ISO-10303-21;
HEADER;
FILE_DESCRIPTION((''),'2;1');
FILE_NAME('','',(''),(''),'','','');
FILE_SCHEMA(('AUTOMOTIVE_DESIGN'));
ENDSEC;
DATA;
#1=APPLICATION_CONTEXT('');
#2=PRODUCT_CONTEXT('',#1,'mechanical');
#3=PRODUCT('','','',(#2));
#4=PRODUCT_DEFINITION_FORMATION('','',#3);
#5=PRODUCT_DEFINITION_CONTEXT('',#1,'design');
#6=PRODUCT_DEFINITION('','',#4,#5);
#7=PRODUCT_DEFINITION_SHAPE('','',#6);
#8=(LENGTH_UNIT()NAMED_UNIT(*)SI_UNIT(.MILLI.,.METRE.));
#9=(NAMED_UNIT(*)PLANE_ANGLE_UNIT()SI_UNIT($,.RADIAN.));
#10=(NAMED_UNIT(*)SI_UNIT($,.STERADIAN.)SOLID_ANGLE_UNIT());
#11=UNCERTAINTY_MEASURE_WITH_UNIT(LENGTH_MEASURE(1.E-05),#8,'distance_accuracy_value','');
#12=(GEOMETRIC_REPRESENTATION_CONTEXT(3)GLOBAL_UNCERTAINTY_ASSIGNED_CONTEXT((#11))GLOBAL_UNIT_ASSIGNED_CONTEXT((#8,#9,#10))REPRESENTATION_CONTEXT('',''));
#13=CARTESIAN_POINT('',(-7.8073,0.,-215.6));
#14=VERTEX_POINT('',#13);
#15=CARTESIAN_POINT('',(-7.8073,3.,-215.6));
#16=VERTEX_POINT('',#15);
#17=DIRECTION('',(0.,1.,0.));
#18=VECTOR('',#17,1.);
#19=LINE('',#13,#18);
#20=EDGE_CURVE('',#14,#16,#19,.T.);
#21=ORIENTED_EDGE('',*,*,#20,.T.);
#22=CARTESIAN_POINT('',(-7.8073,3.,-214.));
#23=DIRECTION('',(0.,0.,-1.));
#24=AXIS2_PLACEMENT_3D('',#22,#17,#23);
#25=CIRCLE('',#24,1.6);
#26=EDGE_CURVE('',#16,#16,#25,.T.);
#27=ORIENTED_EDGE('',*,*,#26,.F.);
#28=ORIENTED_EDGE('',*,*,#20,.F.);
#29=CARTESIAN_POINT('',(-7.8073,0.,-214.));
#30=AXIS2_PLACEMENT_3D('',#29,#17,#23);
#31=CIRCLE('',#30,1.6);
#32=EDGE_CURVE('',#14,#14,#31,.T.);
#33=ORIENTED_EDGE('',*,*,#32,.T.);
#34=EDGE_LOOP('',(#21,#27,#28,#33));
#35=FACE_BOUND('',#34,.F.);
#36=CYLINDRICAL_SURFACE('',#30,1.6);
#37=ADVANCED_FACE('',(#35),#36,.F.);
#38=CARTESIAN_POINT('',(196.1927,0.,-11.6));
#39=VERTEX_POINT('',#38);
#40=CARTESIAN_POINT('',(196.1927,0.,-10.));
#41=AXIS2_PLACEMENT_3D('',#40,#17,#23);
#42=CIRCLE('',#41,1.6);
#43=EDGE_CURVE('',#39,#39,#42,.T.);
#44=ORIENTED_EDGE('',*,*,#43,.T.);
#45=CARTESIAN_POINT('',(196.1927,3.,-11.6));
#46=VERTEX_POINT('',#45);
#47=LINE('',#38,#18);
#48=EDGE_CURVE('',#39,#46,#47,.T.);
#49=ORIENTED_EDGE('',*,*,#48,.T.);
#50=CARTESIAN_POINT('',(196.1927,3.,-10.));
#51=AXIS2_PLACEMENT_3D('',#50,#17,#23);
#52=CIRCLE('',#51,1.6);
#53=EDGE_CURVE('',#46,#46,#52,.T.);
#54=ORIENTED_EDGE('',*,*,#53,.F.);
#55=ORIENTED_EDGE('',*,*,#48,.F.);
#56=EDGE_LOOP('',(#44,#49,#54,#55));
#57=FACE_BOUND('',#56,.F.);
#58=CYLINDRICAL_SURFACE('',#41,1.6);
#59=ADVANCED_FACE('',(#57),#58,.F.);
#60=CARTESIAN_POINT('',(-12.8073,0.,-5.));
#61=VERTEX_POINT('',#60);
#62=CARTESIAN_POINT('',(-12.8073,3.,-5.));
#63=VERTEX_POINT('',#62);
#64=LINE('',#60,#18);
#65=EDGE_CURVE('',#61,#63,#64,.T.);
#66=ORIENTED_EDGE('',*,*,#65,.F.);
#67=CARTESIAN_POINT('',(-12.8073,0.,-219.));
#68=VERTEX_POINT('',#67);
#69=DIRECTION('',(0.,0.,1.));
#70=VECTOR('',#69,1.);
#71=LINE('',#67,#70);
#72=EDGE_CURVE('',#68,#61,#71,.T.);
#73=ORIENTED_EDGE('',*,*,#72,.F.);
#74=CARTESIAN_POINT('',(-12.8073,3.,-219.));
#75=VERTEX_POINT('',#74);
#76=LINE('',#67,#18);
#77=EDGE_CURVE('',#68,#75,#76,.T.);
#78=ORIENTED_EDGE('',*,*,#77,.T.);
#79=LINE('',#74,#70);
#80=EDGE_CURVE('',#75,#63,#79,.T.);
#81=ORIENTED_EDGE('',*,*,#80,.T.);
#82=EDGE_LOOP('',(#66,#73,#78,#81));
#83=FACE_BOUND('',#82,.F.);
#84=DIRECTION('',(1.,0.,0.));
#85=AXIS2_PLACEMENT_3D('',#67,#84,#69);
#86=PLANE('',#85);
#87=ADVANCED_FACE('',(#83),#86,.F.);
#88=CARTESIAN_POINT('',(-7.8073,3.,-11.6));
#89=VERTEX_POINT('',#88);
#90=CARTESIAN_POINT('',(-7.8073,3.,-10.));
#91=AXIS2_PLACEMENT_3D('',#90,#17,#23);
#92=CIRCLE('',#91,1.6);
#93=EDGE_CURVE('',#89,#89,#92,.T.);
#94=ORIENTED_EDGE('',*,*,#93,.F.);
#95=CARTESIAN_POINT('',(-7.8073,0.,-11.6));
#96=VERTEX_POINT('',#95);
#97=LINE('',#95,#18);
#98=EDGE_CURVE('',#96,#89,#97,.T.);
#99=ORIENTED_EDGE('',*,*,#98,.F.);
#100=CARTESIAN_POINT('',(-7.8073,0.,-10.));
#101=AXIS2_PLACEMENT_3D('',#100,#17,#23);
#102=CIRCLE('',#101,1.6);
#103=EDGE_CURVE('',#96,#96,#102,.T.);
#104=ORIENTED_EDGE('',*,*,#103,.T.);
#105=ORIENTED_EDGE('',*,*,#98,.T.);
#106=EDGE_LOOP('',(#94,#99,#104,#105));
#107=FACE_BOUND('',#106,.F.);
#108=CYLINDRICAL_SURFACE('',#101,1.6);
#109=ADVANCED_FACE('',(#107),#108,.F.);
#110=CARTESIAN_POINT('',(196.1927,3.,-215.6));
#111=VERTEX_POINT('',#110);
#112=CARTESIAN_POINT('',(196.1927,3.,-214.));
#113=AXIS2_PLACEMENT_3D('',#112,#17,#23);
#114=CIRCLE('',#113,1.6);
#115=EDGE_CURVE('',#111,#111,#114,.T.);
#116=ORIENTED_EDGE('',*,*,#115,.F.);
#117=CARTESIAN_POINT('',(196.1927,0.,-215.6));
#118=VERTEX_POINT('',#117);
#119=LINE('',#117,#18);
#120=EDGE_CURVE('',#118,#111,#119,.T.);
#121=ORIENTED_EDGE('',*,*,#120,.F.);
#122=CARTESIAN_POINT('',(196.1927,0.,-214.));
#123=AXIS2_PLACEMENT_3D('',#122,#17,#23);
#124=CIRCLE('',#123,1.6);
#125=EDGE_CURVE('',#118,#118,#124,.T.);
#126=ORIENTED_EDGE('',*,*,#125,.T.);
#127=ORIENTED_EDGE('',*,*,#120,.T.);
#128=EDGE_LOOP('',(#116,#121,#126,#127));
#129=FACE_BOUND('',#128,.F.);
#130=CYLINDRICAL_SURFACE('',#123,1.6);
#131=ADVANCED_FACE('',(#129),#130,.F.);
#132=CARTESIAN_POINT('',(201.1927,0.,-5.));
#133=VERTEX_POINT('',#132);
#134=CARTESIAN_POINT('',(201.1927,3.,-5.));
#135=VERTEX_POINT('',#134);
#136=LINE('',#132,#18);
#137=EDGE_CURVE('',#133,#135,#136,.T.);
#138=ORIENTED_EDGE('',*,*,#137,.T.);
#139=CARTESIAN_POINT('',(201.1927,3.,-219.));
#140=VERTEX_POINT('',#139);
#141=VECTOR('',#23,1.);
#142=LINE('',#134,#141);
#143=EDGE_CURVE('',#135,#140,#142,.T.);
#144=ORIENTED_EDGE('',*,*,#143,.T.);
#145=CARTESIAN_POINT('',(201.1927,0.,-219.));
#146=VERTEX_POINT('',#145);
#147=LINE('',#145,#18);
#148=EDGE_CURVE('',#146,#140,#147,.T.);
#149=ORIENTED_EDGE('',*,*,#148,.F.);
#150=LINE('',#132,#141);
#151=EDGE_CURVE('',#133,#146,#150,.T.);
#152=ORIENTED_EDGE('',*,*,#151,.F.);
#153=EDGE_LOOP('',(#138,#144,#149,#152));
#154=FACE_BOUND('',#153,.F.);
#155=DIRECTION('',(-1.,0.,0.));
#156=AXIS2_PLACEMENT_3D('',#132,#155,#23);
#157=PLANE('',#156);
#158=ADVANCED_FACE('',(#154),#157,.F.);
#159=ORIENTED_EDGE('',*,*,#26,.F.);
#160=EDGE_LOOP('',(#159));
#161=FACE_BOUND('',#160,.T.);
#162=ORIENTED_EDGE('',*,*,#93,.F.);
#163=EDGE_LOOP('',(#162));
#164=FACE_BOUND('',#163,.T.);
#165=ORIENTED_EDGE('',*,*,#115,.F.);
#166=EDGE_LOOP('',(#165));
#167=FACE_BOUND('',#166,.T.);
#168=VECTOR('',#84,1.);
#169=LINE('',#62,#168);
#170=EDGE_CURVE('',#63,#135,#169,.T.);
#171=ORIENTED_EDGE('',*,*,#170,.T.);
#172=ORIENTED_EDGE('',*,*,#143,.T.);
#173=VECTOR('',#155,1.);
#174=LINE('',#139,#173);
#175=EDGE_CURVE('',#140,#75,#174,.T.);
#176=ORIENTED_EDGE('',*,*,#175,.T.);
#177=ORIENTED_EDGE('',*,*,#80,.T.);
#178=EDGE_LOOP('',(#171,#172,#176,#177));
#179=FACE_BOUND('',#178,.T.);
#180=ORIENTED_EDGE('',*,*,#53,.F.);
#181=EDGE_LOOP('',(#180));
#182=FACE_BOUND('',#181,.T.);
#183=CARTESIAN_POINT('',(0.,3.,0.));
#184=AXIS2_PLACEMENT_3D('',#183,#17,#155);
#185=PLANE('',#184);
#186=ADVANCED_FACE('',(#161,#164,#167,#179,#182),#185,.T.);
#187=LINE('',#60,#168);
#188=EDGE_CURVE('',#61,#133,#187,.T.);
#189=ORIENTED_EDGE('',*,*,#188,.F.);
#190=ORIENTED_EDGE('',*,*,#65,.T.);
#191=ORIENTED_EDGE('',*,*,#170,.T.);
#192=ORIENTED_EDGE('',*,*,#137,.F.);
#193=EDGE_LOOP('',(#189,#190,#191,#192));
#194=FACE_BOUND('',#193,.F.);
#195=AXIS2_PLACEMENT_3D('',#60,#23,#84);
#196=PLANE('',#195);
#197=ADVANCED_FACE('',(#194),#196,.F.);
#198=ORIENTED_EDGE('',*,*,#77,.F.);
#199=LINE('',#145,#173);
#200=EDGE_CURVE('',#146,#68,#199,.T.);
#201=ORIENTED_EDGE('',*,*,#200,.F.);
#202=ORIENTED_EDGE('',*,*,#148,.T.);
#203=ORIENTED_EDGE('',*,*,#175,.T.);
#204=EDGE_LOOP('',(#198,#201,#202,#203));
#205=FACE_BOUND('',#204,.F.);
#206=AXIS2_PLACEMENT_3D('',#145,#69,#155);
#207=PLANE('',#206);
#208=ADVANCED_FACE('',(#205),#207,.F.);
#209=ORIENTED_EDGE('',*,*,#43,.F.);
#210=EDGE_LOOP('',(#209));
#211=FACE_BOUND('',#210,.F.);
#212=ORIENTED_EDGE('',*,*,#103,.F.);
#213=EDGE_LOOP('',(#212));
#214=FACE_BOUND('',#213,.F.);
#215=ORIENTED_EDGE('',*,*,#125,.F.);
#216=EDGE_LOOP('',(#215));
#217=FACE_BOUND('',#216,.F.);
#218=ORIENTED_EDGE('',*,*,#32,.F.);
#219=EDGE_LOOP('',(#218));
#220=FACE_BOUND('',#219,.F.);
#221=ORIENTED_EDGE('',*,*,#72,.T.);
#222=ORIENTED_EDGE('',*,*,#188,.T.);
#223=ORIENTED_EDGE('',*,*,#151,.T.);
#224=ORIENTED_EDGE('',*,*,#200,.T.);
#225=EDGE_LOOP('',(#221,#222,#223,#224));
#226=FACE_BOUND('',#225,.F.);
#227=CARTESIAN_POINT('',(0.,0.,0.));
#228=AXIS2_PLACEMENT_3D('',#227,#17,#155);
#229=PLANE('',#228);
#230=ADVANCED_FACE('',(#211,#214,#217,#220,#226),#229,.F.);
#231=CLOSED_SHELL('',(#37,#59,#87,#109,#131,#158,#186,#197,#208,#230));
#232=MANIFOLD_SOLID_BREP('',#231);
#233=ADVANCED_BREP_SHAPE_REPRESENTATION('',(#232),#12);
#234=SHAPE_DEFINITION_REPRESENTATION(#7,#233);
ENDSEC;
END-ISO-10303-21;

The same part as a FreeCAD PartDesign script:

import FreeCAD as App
import Part
import Sketcher
Q = App.Units.Quantity


def add_polygon(sketch, points):
    """Adds a closed chain of lines whose ends are joined by coincident constraints."""
    first, n = sketch.GeometryCount, len(points)
    for a, b in zip(points, points[1:] + points[:1]):
        sketch.addGeometry(Part.LineSegment(App.Vector(*a, 0), App.Vector(*b, 0)), False)
    for i in range(n):
        sketch.addConstraint(Sketcher.Constraint("Coincident", first + i, 2, first + (i + 1) % n, 1))

doc = App.newDocument("Part")
body = doc.addObject("PartDesign::Body", "Body")

sketch1 = body.newObject("Sketcher::SketchObject", "Sketch")
sketch1.AttachmentSupport = (doc.getObject("XZ_Plane"), [""])
sketch1.MapMode = "FlatFace"
add_polygon(sketch1, [(-12.8073, -219), (-12.8073, -5), (201.1927, -5), (201.1927, -219)])
sketch1.addConstraint([
    Sketcher.Constraint("Vertical", 0),
    Sketcher.Constraint("Horizontal", 1),
    Sketcher.Constraint("Vertical", 2),
    Sketcher.Constraint("Horizontal", 3),
    Sketcher.Constraint("Equal", 3, 0),
    Sketcher.Constraint("DistanceX", 1, 1, 1, 2, Q("214 mm")),
    Sketcher.Constraint("DistanceY", 0, 2, -1, 1, Q("5 mm")),
    Sketcher.Constraint("DistanceX", 0, 2, -1, 1, Q("12.8073 mm")),
])
pad1 = body.newObject("PartDesign::Pad", "Pad")
pad1.Profile = sketch1
pad1.Length = 3
pad1.Reversed = True

sketch2 = body.newObject("Sketcher::SketchObject", "Sketch001")
sketch2.AttachmentSupport = (doc.getObject("XZ_Plane"), [""])
sketch2.MapMode = "FlatFace"
sketch2.addGeometry([
    Part.Circle(App.Vector(-7.8073, -10, 0), App.Vector(0, 0, 1), 1.6),
    Part.Circle(App.Vector(-7.8073, -214, 0), App.Vector(0, 0, 1), 1.6),
    Part.Circle(App.Vector(196.1927, -214, 0), App.Vector(0, 0, 1), 1.6),
    Part.Circle(App.Vector(196.1927, -10, 0), App.Vector(0, 0, 1), 1.6),
], False)
sketch2.addConstraint([
    Sketcher.Constraint("Equal", 0, 1),
    Sketcher.Constraint("Equal", 1, 2),
    Sketcher.Constraint("Equal", 2, 3),
    Sketcher.Constraint("Horizontal", 1, 3, 2, 3),
    Sketcher.Constraint("Horizontal", 0, 3, 3, 3),
    Sketcher.Constraint("Vertical", 0, 3, 1, 3),
    Sketcher.Constraint("Vertical", 2, 3, 3, 3),
    Sketcher.Constraint("Diameter", 0, Q("3.2 mm")),
    Sketcher.Constraint("DistanceY", 0, 3, -1, 1, Q("10 mm")),
    Sketcher.Constraint("DistanceY", 1, 3, -1, 1, Q("214 mm")),
    Sketcher.Constraint("DistanceX", 1, 3, 2, 3, Q("204 mm")),
    Sketcher.Constraint("DistanceX", 0, 3, -1, 1, Q("7.8073 mm")),
])
doc.recompute()
hole = body.newObject("PartDesign::Hole", "Hole")
hole.Profile = sketch2
hole.ThreadType = "None"
hole.Diameter = 3.2
hole.DepthType = "ThroughAll"

doc.recompute()
